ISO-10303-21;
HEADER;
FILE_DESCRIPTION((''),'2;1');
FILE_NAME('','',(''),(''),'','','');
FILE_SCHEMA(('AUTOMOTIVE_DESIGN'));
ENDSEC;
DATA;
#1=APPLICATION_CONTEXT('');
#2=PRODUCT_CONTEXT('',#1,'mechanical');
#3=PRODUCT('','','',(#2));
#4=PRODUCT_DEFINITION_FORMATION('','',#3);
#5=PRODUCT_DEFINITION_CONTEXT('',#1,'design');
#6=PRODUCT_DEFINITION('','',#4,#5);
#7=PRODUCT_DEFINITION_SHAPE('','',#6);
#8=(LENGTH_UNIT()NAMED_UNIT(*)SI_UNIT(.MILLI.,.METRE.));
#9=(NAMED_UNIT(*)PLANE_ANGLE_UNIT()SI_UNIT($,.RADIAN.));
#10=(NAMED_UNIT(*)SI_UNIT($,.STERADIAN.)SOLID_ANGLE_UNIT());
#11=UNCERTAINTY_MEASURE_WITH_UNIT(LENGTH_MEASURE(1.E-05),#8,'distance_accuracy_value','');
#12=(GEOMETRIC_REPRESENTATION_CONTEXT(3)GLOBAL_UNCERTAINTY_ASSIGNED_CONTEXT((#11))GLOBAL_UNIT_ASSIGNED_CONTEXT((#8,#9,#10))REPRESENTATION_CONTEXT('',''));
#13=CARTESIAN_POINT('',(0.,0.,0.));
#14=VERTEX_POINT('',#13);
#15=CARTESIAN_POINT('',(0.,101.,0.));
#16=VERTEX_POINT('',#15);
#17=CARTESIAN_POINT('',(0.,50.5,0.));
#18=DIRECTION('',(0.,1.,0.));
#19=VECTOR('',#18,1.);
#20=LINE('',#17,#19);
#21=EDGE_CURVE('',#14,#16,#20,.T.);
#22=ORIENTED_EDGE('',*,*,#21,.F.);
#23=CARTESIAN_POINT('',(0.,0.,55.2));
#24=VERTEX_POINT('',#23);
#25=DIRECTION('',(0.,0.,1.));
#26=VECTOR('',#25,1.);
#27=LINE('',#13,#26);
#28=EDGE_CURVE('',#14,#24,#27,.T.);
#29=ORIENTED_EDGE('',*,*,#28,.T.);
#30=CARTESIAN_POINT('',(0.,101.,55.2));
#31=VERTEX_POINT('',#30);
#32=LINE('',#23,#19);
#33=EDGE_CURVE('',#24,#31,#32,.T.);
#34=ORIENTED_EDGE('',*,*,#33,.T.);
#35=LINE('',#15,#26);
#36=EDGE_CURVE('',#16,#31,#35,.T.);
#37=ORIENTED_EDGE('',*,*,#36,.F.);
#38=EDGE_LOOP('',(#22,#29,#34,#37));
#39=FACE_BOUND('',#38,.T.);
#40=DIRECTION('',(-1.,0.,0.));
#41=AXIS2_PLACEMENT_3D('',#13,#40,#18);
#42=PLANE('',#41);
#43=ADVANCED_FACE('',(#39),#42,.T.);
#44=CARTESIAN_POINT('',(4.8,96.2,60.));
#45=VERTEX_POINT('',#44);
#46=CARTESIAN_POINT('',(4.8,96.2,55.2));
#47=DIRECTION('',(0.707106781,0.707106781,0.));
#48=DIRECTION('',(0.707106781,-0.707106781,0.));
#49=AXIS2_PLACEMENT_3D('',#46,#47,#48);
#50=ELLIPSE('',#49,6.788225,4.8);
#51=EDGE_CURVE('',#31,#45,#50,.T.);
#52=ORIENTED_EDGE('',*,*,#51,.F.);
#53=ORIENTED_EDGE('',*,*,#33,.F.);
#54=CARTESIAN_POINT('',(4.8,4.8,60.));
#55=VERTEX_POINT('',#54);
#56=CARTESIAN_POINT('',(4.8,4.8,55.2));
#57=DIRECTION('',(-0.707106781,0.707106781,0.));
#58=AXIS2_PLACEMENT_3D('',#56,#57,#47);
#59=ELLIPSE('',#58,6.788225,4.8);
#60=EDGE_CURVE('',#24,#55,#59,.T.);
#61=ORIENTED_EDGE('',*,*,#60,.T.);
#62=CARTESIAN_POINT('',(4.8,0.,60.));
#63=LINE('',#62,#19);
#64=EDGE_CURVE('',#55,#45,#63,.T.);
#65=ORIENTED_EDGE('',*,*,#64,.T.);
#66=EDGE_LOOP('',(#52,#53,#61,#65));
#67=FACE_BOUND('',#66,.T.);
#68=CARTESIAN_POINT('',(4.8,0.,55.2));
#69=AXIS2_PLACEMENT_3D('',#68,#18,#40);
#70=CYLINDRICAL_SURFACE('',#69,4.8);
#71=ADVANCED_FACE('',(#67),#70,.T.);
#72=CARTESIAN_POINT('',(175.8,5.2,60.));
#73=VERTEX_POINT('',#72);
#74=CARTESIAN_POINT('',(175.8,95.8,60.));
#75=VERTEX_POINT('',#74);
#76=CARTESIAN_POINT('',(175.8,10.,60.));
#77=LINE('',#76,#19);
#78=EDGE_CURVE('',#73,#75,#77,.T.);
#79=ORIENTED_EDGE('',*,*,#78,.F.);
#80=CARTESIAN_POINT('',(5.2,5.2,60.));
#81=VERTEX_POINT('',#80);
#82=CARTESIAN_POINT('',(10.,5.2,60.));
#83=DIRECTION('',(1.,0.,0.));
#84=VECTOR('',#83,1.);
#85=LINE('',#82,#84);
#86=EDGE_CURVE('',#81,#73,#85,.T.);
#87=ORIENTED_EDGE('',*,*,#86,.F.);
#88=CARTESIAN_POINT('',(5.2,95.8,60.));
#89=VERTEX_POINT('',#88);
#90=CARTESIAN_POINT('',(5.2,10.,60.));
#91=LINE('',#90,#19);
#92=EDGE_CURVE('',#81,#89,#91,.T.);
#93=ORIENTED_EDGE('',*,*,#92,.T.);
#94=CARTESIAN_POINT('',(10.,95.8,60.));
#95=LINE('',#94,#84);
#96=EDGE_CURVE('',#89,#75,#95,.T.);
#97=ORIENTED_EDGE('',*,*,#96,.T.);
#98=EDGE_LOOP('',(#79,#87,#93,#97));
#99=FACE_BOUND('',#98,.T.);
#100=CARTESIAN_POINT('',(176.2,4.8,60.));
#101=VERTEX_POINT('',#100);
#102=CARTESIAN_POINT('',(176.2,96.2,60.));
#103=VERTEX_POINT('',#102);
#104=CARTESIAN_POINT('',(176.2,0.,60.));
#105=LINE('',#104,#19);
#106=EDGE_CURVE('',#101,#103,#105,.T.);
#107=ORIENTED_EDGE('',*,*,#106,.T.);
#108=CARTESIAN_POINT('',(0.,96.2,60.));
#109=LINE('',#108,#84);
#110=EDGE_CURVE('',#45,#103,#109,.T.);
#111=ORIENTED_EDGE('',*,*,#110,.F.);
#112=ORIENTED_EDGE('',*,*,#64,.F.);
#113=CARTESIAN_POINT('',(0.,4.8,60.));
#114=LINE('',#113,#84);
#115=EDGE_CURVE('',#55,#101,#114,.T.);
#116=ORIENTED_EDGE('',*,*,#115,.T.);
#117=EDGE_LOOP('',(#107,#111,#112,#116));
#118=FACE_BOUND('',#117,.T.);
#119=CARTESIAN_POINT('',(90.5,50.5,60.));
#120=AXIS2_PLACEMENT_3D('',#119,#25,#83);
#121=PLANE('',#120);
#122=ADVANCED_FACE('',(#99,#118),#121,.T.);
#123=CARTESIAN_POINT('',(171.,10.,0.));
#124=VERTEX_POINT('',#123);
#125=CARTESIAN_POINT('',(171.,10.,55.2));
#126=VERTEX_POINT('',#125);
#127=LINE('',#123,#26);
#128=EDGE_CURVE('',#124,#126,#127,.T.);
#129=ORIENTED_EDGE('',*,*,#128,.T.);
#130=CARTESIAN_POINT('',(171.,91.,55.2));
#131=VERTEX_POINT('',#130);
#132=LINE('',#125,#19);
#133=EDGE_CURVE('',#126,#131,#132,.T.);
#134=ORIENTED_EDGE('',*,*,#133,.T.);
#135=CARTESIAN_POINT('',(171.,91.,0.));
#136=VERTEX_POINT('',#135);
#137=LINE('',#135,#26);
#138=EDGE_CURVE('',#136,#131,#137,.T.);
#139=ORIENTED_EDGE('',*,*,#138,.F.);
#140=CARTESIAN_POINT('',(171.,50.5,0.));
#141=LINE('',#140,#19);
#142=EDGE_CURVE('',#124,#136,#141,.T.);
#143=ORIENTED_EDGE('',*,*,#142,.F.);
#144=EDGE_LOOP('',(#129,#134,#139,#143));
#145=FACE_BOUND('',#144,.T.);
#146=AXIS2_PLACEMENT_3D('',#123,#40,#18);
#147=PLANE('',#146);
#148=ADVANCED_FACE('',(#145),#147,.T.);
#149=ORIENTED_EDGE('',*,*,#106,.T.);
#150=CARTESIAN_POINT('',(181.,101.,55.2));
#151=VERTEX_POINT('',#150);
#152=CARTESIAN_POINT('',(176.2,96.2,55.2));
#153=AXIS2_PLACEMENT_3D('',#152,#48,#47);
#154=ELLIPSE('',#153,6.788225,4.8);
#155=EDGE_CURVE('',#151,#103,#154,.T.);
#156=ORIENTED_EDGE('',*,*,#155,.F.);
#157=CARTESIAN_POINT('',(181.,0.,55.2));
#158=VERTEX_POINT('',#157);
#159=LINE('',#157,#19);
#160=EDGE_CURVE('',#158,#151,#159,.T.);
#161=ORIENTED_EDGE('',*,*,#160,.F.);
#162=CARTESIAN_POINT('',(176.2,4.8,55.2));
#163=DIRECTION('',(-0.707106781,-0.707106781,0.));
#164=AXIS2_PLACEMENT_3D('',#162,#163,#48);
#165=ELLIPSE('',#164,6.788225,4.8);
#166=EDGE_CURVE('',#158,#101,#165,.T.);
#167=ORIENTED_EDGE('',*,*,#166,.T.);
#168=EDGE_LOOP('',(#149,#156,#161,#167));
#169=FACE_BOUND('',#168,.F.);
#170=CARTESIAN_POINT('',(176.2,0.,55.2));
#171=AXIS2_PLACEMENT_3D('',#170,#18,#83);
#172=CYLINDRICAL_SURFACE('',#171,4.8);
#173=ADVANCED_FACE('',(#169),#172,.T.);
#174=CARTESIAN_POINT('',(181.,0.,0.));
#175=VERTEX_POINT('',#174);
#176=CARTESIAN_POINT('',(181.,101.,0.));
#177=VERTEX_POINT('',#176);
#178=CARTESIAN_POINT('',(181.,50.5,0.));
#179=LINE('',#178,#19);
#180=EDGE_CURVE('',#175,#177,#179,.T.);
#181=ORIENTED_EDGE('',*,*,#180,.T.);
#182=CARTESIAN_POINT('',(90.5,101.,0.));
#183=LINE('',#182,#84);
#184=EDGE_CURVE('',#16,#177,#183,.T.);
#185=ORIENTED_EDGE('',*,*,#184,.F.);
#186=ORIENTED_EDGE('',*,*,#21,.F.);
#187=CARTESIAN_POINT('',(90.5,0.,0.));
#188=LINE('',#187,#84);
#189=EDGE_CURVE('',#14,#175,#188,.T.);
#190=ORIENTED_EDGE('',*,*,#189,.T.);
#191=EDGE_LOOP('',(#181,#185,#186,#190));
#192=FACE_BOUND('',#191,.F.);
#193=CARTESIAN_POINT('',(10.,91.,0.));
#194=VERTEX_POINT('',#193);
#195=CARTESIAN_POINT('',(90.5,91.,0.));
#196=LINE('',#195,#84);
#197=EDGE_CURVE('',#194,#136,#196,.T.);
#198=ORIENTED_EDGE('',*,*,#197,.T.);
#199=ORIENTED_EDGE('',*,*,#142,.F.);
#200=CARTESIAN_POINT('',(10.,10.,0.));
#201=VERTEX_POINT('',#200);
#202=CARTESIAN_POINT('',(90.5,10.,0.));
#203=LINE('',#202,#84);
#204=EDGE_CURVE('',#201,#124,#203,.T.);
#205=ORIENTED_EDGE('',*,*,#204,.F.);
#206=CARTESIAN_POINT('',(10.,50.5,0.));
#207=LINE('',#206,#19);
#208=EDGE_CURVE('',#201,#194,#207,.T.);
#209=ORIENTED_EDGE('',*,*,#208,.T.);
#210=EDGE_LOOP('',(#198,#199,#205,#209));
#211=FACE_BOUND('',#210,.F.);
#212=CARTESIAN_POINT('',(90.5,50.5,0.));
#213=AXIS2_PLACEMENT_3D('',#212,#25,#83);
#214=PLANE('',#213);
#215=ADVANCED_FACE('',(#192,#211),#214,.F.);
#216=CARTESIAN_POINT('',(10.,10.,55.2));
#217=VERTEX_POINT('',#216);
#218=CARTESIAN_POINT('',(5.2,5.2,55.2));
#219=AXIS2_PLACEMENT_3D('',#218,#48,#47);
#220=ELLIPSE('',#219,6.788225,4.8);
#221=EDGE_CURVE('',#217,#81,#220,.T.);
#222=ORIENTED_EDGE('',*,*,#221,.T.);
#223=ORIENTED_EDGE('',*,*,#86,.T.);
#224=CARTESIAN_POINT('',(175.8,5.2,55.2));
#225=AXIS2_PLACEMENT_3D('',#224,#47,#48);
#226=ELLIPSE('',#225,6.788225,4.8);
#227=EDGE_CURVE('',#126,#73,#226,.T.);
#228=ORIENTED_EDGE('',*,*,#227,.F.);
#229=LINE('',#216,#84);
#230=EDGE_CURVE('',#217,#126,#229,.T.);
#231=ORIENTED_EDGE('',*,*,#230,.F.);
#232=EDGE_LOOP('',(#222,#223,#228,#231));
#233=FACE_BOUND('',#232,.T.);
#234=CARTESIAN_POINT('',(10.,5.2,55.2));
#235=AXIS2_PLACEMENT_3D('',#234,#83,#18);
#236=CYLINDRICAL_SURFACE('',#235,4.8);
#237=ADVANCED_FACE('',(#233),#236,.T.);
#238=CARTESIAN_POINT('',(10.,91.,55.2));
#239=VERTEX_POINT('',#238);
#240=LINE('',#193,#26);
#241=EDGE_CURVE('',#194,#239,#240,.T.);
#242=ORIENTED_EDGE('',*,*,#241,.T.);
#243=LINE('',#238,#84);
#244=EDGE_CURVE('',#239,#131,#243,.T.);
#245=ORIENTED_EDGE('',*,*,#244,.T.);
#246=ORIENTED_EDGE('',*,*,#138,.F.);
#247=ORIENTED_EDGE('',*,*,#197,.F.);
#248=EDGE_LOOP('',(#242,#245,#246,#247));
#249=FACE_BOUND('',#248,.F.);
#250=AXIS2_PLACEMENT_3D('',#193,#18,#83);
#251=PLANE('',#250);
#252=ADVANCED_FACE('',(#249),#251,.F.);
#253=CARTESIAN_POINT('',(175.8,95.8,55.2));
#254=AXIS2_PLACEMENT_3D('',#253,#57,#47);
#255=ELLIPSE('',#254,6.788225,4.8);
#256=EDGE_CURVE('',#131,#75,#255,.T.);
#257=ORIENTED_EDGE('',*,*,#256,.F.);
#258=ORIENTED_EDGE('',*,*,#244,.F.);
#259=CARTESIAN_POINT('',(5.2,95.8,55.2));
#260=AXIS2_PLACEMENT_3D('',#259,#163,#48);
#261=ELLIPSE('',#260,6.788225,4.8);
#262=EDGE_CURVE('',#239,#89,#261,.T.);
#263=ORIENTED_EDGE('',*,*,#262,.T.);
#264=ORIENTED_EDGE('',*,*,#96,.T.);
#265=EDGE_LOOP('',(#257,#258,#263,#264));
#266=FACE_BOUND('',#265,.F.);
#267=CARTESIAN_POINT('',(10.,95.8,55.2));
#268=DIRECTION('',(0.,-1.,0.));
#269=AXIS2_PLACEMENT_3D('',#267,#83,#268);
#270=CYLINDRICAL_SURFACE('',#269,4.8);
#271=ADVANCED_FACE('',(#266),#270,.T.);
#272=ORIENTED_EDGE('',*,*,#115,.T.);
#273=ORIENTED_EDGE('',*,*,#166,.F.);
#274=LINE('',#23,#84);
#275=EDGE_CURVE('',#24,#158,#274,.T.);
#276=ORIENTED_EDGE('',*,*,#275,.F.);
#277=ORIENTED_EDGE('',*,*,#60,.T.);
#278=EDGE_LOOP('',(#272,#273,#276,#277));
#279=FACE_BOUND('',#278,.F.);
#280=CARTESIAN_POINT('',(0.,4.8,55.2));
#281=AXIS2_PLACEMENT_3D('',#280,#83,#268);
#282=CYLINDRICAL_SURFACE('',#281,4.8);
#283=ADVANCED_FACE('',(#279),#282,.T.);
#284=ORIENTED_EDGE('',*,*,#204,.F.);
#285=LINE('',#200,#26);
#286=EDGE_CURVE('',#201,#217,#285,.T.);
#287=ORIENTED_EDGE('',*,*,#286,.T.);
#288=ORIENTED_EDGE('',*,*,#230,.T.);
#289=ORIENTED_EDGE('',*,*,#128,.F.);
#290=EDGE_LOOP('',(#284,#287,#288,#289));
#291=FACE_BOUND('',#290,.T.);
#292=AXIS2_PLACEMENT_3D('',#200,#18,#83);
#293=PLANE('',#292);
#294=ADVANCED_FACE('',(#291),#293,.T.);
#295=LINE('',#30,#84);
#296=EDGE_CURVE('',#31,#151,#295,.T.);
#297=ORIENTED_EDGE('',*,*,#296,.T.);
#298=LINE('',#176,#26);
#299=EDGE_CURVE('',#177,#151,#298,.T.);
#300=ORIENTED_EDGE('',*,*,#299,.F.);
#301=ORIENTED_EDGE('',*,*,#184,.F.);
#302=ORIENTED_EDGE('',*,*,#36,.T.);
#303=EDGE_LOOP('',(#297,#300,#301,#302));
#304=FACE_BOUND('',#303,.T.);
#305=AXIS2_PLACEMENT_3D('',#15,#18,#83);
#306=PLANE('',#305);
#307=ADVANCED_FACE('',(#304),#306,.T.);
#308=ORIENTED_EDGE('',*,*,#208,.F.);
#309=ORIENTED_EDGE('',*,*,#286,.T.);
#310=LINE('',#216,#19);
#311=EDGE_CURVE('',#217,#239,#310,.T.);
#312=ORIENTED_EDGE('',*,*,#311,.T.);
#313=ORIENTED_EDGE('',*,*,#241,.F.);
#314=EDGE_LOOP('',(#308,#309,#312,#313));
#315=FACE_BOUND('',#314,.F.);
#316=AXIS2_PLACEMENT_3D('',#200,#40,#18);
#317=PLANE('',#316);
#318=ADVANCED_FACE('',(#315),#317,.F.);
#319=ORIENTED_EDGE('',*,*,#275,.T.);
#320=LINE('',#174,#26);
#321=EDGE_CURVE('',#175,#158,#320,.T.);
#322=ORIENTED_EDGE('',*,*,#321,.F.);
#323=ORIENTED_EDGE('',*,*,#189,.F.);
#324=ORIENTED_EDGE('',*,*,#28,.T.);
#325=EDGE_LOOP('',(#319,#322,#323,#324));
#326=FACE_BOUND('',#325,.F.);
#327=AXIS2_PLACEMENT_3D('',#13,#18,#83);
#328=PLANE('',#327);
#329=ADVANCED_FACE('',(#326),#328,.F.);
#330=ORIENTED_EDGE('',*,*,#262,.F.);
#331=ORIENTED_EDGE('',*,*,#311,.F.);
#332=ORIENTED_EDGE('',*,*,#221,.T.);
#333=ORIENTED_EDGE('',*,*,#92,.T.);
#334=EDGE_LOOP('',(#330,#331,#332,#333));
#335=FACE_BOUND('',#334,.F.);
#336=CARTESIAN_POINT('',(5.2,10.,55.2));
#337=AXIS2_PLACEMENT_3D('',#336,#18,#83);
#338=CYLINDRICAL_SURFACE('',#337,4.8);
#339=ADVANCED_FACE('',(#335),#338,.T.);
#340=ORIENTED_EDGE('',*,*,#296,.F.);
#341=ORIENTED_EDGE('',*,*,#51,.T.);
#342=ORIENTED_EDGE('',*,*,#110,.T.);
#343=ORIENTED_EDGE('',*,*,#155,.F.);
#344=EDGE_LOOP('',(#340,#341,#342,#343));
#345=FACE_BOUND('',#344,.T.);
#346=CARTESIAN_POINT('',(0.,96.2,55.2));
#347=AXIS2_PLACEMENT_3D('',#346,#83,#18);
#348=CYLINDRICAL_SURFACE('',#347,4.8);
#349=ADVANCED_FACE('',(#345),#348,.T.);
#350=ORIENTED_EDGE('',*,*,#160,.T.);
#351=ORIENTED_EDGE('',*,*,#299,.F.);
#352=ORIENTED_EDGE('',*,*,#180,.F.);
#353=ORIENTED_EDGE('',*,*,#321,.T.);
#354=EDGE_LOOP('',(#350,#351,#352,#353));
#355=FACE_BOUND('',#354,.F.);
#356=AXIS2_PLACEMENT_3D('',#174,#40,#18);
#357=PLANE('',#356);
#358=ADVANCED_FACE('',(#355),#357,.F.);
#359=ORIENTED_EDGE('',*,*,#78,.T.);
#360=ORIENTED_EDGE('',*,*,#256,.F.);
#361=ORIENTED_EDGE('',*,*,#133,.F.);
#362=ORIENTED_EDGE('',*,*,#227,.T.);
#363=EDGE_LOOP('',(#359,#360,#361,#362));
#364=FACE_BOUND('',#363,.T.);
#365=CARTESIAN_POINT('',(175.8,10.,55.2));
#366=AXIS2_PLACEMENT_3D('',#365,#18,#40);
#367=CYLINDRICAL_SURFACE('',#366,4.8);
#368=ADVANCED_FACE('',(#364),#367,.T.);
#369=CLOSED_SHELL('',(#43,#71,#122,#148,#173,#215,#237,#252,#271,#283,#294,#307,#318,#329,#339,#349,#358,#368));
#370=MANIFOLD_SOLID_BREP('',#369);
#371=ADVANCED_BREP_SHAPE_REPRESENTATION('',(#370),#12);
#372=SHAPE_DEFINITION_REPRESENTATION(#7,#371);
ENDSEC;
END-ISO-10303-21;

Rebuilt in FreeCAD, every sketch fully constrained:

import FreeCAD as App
import Part
import Sketcher
from FreeCAD import Vector


def edges_at(feature, points):
    """Names of the edges that pass closest to the given points."""
    edges = feature.Shape.Edges
    near = lambda p: min(range(len(edges)), key=lambda i: edges[i].distToShape(Part.Vertex(*p))[0])
    return sorted({f"Edge{near(p) + 1}" for p in points})

doc = App.newDocument("Part")
body = doc.addObject("PartDesign::Body", "Body")

# Sketch on XY plane
sketch1 = doc.addObject("Sketcher::SketchObject", "Sketch")
body.addObject(sketch1)
sketch1.AttachmentSupport = (doc.XY_Plane, [""])
sketch1.MapMode = "FlatFace"
sketch1.addGeometry([
    Part.LineSegment(Vector(0, 101, 0), Vector(0, 0, 0)),  # 0
    Part.LineSegment(Vector(0, 0, 0), Vector(181, 0, 0)),  # 1
    Part.LineSegment(Vector(181, 0, 0), Vector(181, 101, 0)),  # 2
    Part.LineSegment(Vector(181, 101, 0), Vector(0, 101, 0)),  # 3
    Part.LineSegment(Vector(171, 10, 0), Vector(10, 10, 0)),  # 4
    Part.LineSegment(Vector(10, 10, 0), Vector(10, 91, 0)),  # 5
    Part.LineSegment(Vector(10, 91, 0), Vector(171, 91, 0)),  # 6
    Part.LineSegment(Vector(171, 91, 0), Vector(171, 10, 0)),  # 7
], False)
sketch1.addConstraint([
    Sketcher.Constraint("Coincident", 0, 2, 1, 1),
    Sketcher.Constraint("Coincident", 1, 2, 2, 1),
    Sketcher.Constraint("Coincident", 2, 2, 3, 1),
    Sketcher.Constraint("Coincident", 3, 2, 0, 1),
    Sketcher.Constraint("Coincident", 4, 2, 5, 1),
    Sketcher.Constraint("Coincident", 5, 2, 6, 1),
    Sketcher.Constraint("Coincident", 6, 2, 7, 1),
    Sketcher.Constraint("Coincident", 7, 2, 4, 1),
    Sketcher.Constraint("Vertical", 0),
    Sketcher.Constraint("Horizontal", 1),
    Sketcher.Constraint("Vertical", 2),
    Sketcher.Constraint("Horizontal", 3),
    Sketcher.Constraint("Horizontal", 4),
    Sketcher.Constraint("Vertical", 5),
    Sketcher.Constraint("Horizontal", 6),
    Sketcher.Constraint("Vertical", 7),
    Sketcher.Constraint("Coincident", 0, 2, -1, 1),
    Sketcher.Constraint("DistanceX", 1, 1, 1, 2, 181.0),
    Sketcher.Constraint("DistanceX", 4, 2, 4, 1, 161.0),
    Sketcher.Constraint("DistanceY", 0, 2, 0, 1, 101.0),
    Sketcher.Constraint("DistanceY", 5, 1, 5, 2, 81.0),
    Sketcher.Constraint("DistanceX", -1, 1, 4, 2, 10.0),
    Sketcher.Constraint("DistanceY", -1, 1, 4, 2, 10.0),
])
pad1 = doc.addObject("PartDesign::Pad", "Pad")
body.addObject(pad1)
pad1.Profile = sketch1
pad1.Length = 60
doc.recompute()

fillet = doc.addObject("PartDesign::Fillet", "Fillet")
body.addObject(fillet)
fillet.Base = (pad1, edges_at(pad1, [
    (90.5, 0, 60),
    (181, 50.5, 60),
    (90.5, 101, 60),
    (0, 50.5, 60),
    (90.5, 10, 60),
    (171, 50.5, 60),
    (90.5, 91, 60),
    (10, 50.5, 60),
]))
fillet.Radius = 4.8

doc.recompute()
